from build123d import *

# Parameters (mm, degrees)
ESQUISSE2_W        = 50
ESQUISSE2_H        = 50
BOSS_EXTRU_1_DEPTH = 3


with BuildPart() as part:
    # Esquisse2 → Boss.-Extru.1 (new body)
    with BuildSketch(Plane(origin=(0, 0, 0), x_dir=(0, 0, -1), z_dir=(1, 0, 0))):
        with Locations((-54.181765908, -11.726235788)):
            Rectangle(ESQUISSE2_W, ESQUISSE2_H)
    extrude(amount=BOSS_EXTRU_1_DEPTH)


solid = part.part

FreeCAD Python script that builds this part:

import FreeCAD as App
import Part
import Sketcher
from FreeCAD import Vector


def add_polygon(sketch, points):
    """Adds a closed chain of lines whose ends are joined by coincident constraints."""
    first, n = sketch.GeometryCount, len(points)
    for a, b in zip(points, points[1:] + points[:1]):
        sketch.addGeometry(Part.LineSegment(App.Vector(*a, 0), App.Vector(*b, 0)), False)
    for i in range(n):
        sketch.addConstraint(Sketcher.Constraint("Coincident", first + i, 2, first + (i + 1) % n, 1))

doc = App.newDocument("Part")
body = doc.addObject("PartDesign::Body", "Body")

# Sketch on YZ plane
sketch1 = doc.addObject("Sketcher::SketchObject", "Sketch")
body.addObject(sketch1)
sketch1.AttachmentSupport = (doc.YZ_Plane, [""])
sketch1.MapMode = "FlatFace"
add_polygon(sketch1, [(13, 79), (-37, 79), (-37, 29), (13, 29)])  # lines 0-3
sketch1.addConstraint([
    Sketcher.Constraint("Horizontal", 0),
    Sketcher.Constraint("Vertical", 1),
    Sketcher.Constraint("Horizontal", 2),
    Sketcher.Constraint("Vertical", 3),
    Sketcher.Constraint("Equal", 2, 1),
    Sketcher.Constraint("DistanceX", 0, 2, 0, 1, 50.0),
    Sketcher.Constraint("DistanceX", 0, 2, -1, 1, 36.726236),
    Sketcher.Constraint("DistanceY", -1, 1, 0, 2, 79.181766),
])
pad1 = doc.addObject("PartDesign::Pad", "Pad")
body.addObject(pad1)
pad1.Profile = sketch1
pad1.Length = 3

doc.recompute()
